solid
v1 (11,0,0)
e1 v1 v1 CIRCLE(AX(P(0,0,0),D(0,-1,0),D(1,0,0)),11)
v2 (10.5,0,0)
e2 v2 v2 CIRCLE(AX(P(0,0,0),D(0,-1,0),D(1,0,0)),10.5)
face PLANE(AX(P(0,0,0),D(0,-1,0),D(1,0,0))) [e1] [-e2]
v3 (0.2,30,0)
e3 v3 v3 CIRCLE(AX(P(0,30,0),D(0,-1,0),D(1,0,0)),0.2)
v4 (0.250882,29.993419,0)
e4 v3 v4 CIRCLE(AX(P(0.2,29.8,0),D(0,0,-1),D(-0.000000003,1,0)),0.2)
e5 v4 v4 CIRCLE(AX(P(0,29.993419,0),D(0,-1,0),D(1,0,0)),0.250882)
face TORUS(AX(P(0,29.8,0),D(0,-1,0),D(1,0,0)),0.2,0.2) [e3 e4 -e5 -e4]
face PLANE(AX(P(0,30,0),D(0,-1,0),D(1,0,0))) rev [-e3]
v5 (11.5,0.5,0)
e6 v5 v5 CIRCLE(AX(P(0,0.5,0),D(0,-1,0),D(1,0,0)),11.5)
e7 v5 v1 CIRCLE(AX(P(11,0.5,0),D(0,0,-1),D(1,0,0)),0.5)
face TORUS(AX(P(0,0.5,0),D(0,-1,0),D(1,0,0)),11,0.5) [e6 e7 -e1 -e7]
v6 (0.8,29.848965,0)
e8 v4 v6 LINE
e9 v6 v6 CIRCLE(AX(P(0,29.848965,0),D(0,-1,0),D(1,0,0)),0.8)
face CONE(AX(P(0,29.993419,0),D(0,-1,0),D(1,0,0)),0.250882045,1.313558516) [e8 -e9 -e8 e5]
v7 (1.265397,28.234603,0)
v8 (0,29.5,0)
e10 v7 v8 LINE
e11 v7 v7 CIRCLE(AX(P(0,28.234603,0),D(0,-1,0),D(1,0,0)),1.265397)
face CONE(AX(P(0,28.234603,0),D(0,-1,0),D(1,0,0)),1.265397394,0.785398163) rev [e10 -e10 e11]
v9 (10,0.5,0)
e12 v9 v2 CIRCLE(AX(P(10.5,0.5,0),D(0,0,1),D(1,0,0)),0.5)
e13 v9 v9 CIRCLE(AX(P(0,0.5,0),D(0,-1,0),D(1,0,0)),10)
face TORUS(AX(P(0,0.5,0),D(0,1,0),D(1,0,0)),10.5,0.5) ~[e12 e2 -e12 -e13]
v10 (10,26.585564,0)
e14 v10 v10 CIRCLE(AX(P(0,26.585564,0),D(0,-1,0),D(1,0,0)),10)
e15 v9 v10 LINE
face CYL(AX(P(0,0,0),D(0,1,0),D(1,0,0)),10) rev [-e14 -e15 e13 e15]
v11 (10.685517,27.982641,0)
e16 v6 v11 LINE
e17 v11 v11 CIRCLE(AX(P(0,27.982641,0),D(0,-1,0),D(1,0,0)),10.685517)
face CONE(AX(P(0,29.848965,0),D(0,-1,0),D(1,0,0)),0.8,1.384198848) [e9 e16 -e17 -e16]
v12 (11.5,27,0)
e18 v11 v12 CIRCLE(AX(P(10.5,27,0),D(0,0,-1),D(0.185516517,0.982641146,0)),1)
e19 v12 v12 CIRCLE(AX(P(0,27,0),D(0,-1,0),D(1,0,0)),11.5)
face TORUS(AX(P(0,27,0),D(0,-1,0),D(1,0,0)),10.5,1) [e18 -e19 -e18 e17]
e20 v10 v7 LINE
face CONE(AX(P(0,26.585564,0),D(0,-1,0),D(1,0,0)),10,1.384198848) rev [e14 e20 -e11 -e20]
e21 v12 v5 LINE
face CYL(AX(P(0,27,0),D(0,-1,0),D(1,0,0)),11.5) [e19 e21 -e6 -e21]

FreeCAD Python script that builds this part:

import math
import FreeCAD as App
import Part
import Sketcher
from FreeCAD import Vector
Q = App.Units.Quantity


def edges_at(feature, points):
    """Names of the edges that pass closest to the given points."""
    edges = feature.Shape.Edges
    near = lambda p: min(range(len(edges)), key=lambda i: edges[i].distToShape(Part.Vertex(*p))[0])
    return sorted({f"Edge{near(p) + 1}" for p in points})

doc = App.newDocument("Part")
params = doc.addObject("Spreadsheet::Sheet", "Params")
for row, (alias, value) in enumerate([
    ("sketch1_radius", "1 mm"),
    ("sketch1_radius2", "0.2 mm"),
    ("sketch1_height", "27 mm"),
    ("sketch1_width", "1.5 mm"),
    ("sketch1_width2", "0.2 mm"),
    ("revolution_angle", "360 deg"),
    ("fillet_radius", "0.5 mm"),
], start=1):
    params.set(f"A{row}", alias)
    params.set(f"B{row}", "=" + value)
    params.setAlias(f"B{row}", alias)

body = doc.addObject("PartDesign::Body", "Body")

# Sketch on XY plane
sketch1 = body.newObject("Sketcher::SketchObject", "Sketch")
sketch1.AttachmentSupport = (doc.getObject("XY_Plane"), [""])
sketch1.MapMode = "FlatFace"
sketch1.addGeometry([
    Part.LineSegment(Vector(10, 26.59, 0), Vector(10, 0, 0)),  # 0
    Part.LineSegment(Vector(10, 0, 0), Vector(11.5, 0, 0)),  # 1
    Part.LineSegment(Vector(11.5, 0, 0), Vector(11.5, 27, 0)),  # 2
    Part.ArcOfCircle(Part.Circle(Vector(10.5, 27, 0), Vector(0, 0, 1), 1), math.radians(0), math.radians(79)),  # 3
    Part.LineSegment(Vector(10.69, 27.98, 0), Vector(0.8, 29.85, 0)),  # 4
    Part.LineSegment(Vector(0.8, 29.85, 0), Vector(0.25, 29.99, 0)),  # 5
    Part.ArcOfCircle(Part.Circle(Vector(0.2, 29.8, 0), Vector(0, 0, 1), 0.2), math.radians(75.26), math.radians(90)),  # 6
    Part.LineSegment(Vector(0.2, 30, 0), Vector(0, 30, 0)),  # 7
    Part.LineSegment(Vector(0, 30, 0), Vector(0, 29.5, 0)),  # 8
    Part.LineSegment(Vector(0, 29.5, 0), Vector(1.27, 28.23, 0)),  # 9
    Part.LineSegment(Vector(1.27, 28.23, 0), Vector(10, 26.59, 0)),  # 10
], False)
sketch1.addConstraint([
    Sketcher.Constraint("Coincident", 0, 2, 1, 1),
    Sketcher.Constraint("Coincident", 1, 2, 2, 1),
    Sketcher.Constraint("Tangent", 2, 2, 3, 1),
    Sketcher.Constraint("Tangent", 3, 2, 4, 1),
    Sketcher.Constraint("Coincident", 4, 2, 5, 1),
    Sketcher.Constraint("Tangent", 5, 2, 6, 1),
    Sketcher.Constraint("Tangent", 6, 2, 7, 1),
    Sketcher.Constraint("Coincident", 7, 2, 8, 1),
    Sketcher.Constraint("Coincident", 8, 2, 9, 1),
    Sketcher.Constraint("Coincident", 9, 2, 10, 1),
    Sketcher.Constraint("Coincident", 10, 2, 0, 1),
    Sketcher.Constraint("Vertical", 0),
    Sketcher.Constraint("Horizontal", 1),
    Sketcher.Constraint("Vertical", 2),
    Sketcher.Constraint("Horizontal", 7),
    Sketcher.Constraint("Vertical", 8),
    Sketcher.Constraint("PointOnObject", 0, 2, -1),
    Sketcher.Constraint("PointOnObject", 7, 2, -2),
    Sketcher.Constraint("Parallel", 4, 10),
    Sketcher.Constraint("Radius", 3, 1.0),
    Sketcher.Constraint("Radius", 6, 0.2),
    Sketcher.Constraint("DistanceY", 2, 1, 2, 2, 27.0),
    Sketcher.Constraint("Angle", 9, Q("-45 deg")),
    Sketcher.Constraint("DistanceX", 1, 1, 1, 2, 1.5),
    Sketcher.Constraint("DistanceX", 7, 2, 7, 1, 0.2),
    Sketcher.Constraint("DistanceY", 8, 2, 8, 1, 0.5),
    Sketcher.Constraint("DistanceX", -1, 1, 0, 2, 10.0),
    Sketcher.Constraint("DistanceY", -1, 1, 6, 2, 30.0),
    Sketcher.Constraint("DistanceX", -1, 1, 4, 2, 0.8),
    Sketcher.Constraint("Distance", 5, 0.567801),
    Sketcher.Constraint("DistanceY", 10, 2, 4, 2, 3.263401),
])
sketch1.setExpression("Constraints[19]", "Params.sketch1_radius")
sketch1.setExpression("Constraints[20]", "Params.sketch1_radius2")
sketch1.setExpression("Constraints[21]", "Params.sketch1_height")
sketch1.setExpression("Constraints[23]", "Params.sketch1_width")
sketch1.setExpression("Constraints[24]", "Params.sketch1_width2")
revolution = body.newObject("PartDesign::Revolution", "Revolution")
revolution.Profile = sketch1
revolution.ReferenceAxis = (sketch1, ["V_Axis"])
revolution.setExpression("Angle", "Params.revolution_angle")
doc.recompute()

fillet = body.newObject("PartDesign::Fillet", "Fillet")
fillet.Base = (revolution, edges_at(revolution, [(-0.8, 29.849, 0), (-11.5, 0, 0), (-10, 0, 0)]))
fillet.setExpression("Radius", "Params.fillet_radius")

doc.recompute()
